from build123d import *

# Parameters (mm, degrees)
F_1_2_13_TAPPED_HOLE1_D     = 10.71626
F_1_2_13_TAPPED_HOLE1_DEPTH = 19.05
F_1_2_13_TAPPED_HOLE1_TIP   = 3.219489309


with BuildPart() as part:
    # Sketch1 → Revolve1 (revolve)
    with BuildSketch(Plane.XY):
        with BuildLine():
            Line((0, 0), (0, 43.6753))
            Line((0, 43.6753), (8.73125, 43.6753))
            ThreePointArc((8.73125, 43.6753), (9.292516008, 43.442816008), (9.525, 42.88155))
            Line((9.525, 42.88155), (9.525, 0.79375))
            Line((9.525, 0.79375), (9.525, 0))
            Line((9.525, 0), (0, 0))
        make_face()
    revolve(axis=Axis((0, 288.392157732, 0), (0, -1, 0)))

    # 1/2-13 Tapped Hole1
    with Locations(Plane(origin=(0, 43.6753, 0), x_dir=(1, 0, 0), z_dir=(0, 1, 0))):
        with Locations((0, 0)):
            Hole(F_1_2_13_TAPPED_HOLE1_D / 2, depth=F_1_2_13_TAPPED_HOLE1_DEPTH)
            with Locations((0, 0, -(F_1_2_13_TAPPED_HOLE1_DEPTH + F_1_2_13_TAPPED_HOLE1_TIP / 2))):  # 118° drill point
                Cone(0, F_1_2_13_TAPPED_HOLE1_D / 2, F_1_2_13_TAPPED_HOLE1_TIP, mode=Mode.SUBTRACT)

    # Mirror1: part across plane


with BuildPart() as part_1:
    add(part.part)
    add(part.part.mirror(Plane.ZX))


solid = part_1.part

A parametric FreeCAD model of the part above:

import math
import FreeCAD as App
import Part
import Sketcher

V = App.Vector
Q = App.Units.Quantity

doc = App.newDocument("Part")
params = doc.addObject("Spreadsheet::Sheet", "Params")
for row, (alias, value) in enumerate([
    ("sketch1_radius", "0.03125 in"),
    ("sketch1_width", "0.375 in"),
    ("revolution_angle", "360 deg"),
    ("hole_diameter", "0.4219 in"),
    ("hole_depth", "0.75 in"),
], start=1):
    params.set(f"A{row}", alias)
    params.set(f"B{row}", "=" + value)
    params.setAlias(f"B{row}", alias)

body = doc.addObject("PartDesign::Body", "Body")

# Sketch on XY plane
sketch1 = body.newObject("Sketcher::SketchObject", "Sketch")
sketch1.AttachmentSupport = (doc.getObject("XY_Plane"), [""])
sketch1.MapMode = "FlatFace"
sketch1.addGeometry([
    Part.LineSegment(V(0, 43.6753, 0), V(0, 0, 0)),  # 0
    Part.LineSegment(V(0, 0, 0), V(9.525, 0, 0)),  # 1
    Part.LineSegment(V(9.525, 0, 0), V(9.525, 42.88155, 0)),  # 2
    Part.ArcOfCircle(Part.Circle(V(8.73125, 42.88155, 0), V(0, 0, 1), 0.79375), math.radians(0), math.radians(90)),  # 3
    Part.LineSegment(V(8.73125, 43.6753, 0), V(0, 43.6753, 0)),  # 4
], False)
sketch1.addConstraint([
    Sketcher.Constraint("Coincident", 0, 2, 1, 1),
    Sketcher.Constraint("Coincident", 1, 2, 2, 1),
    Sketcher.Constraint("Tangent", 2, 2, 3, 1),
    Sketcher.Constraint("Tangent", 3, 2, 4, 1),
    Sketcher.Constraint("Coincident", 4, 2, 0, 1),
    Sketcher.Constraint("Vertical", 0),
    Sketcher.Constraint("Horizontal", 1),
    Sketcher.Constraint("Vertical", 2),
    Sketcher.Constraint("Horizontal", 4),
    Sketcher.Constraint("Coincident", 0, 2, -1, 1),
    Sketcher.Constraint("Radius", 3, Q("0.03125 in")),
    Sketcher.Constraint("DistanceX", 1, 1, 1, 2, Q("0.375 in")),
    Sketcher.Constraint("DistanceY", 0, 2, 0, 1, Q("1.7195 in")),
])
sketch1.setExpression("Constraints[10]", "Params.sketch1_radius")
sketch1.setExpression("Constraints[11]", "Params.sketch1_width")
revolution = body.newObject("PartDesign::Revolution", "Revolution")
revolution.Profile = sketch1
revolution.ReferenceAxis = (sketch1, ["V_Axis"])
revolution.setExpression("Angle", "Params.revolution_angle")

# Sketch on XZ plane
sketch2 = body.newObject("Sketcher::SketchObject", "Sketch001")
sketch2.AttachmentSupport = (doc.getObject("XZ_Plane"), [""])
sketch2.MapMode = "FlatFace"
sketch2.AttachmentOffset = App.Placement(V(0, 0, -1.7195 * 25.4), App.Rotation())
sketch2.addGeometry(Part.Circle(V(0, 0, 0), V(0, 0, 1), 5.35813), False)
sketch2.addConstraint([
    Sketcher.Constraint("Coincident", 0, 3, -1, 1),
    Sketcher.Constraint("Diameter", 0, Q("0.4219 in")),
])
doc.recompute()
hole = body.newObject("PartDesign::Hole", "Hole")
hole.Profile = sketch2
hole.ThreadType = "None"
hole.setExpression("Diameter", "Params.hole_diameter")
hole.DepthType = "Dimension"
hole.setExpression("Depth", "Params.hole_depth")
hole.DrillPoint = "Angled"
hole.DrillPointAngle = 118
hole.Reversed = True
body2 = doc.addObject("PartDesign::Body", "Body001")
doc.recompute()

body2.BaseFeature = body
doc.recompute()

mirroring = doc.addObject("Part::Mirroring", "Mirroring")
mirroring.Source = body
mirroring.Base = V(0, 0, 0)
mirroring.Normal = V(0, 1, 0)
body3 = doc.addObject("PartDesign::Body", "Body002")
body3.BaseFeature = mirroring
boolean = body2.newObject("PartDesign::Boolean", "Boolean")
boolean.Type = "Fuse"
boolean.addObjects([body3])
doc.recompute()
mirroring.Visibility = False

doc.recompute()
